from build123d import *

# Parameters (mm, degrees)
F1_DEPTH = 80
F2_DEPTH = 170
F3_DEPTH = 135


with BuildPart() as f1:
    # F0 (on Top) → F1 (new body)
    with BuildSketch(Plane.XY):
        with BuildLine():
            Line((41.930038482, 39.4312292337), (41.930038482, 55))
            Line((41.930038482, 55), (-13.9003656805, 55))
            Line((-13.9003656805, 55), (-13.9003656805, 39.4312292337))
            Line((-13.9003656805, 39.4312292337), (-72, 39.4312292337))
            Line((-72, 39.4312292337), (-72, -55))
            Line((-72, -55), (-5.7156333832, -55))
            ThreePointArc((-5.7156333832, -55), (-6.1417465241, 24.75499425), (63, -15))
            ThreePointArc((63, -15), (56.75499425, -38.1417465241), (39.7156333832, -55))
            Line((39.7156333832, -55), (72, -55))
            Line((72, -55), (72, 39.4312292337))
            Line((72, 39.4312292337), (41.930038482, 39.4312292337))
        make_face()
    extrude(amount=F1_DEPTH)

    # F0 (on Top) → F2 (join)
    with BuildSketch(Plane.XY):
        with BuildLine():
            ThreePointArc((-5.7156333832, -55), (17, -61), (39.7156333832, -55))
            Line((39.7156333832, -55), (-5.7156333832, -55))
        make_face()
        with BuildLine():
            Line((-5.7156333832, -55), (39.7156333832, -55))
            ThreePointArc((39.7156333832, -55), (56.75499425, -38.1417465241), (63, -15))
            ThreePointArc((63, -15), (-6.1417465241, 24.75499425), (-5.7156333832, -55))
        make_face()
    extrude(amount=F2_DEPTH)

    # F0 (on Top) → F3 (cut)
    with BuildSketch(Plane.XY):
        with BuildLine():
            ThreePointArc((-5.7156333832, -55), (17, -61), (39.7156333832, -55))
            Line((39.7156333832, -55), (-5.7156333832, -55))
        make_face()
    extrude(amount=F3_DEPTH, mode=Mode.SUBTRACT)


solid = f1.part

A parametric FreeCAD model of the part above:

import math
import FreeCAD as App
import Part
import Sketcher
Q = App.Units.Quantity

doc = App.newDocument("Part")
params = doc.addObject("Spreadsheet::Sheet", "Params")
for row, (alias, value) in enumerate([
    ("sketch1_radius", "46 mm"),
    ("pad1_length", "80 mm"),
    ("sketch2_radius", "46 mm"),
    ("pad2_length", "170 mm"),
    ("sketch3_radius", "46 mm"),
    ("pocket1_length", "135 mm"),
], start=1):
    params.set(f"A{row}", alias)
    params.set(f"B{row}", "=" + value)
    params.setAlias(f"B{row}", alias)

body = doc.addObject("PartDesign::Body", "Body")

sketch1 = body.newObject("Sketcher::SketchObject", "Sketch")
sketch1.AttachmentSupport = (doc.getObject("XY_Plane"), [""])
sketch1.MapMode = "FlatFace"
sketch1.addGeometry([
    Part.LineSegment(App.Vector(42, 39, 0), App.Vector(42, 55, 0)),
    Part.LineSegment(App.Vector(42, 55, 0), App.Vector(-14, 55, 0)),
    Part.LineSegment(App.Vector(-14, 55, 0), App.Vector(-14, 39, 0)),
    Part.LineSegment(App.Vector(-14, 39, 0), App.Vector(-72, 39, 0)),
    Part.LineSegment(App.Vector(-72, 39, 0), App.Vector(-72, -55, 0)),
    Part.LineSegment(App.Vector(-72, -55, 0), App.Vector(-6, -55, 0)),
    Part.ArcOfCircle(Part.Circle(App.Vector(17, -15, 0), App.Vector(0, 0, 1), 46), math.radians(0), math.radians(240)),
    Part.ArcOfCircle(Part.Circle(App.Vector(17, -15, 0), App.Vector(0, 0, 1), 46), math.radians(-60), math.radians(0)),
    Part.LineSegment(App.Vector(40, -55, 0), App.Vector(72, -55, 0)),
    Part.LineSegment(App.Vector(72, -55, 0), App.Vector(72, 39, 0)),
    Part.LineSegment(App.Vector(72, 39, 0), App.Vector(42, 39, 0)),
], False)
sketch1.addConstraint([
    Sketcher.Constraint("Coincident", 0, 2, 1, 1),
    Sketcher.Constraint("Coincident", 1, 2, 2, 1),
    Sketcher.Constraint("Coincident", 2, 2, 3, 1),
    Sketcher.Constraint("Coincident", 3, 2, 4, 1),
    Sketcher.Constraint("Coincident", 4, 2, 5, 1),
    Sketcher.Constraint("Coincident", 5, 2, 6, 2),
    Sketcher.Constraint("Tangent", 6, 1, 7, 2),
    Sketcher.Constraint("Coincident", 7, 1, 8, 1),
    Sketcher.Constraint("Coincident", 8, 2, 9, 1),
    Sketcher.Constraint("Coincident", 9, 2, 10, 1),
    Sketcher.Constraint("Coincident", 10, 2, 0, 1),
    Sketcher.Constraint("Vertical", 0),
    Sketcher.Constraint("Horizontal", 1),
    Sketcher.Constraint("Vertical", 2),
    Sketcher.Constraint("Horizontal", 3),
    Sketcher.Constraint("Vertical", 4),
    Sketcher.Constraint("Horizontal", 5),
    Sketcher.Constraint("Horizontal", 8),
    Sketcher.Constraint("Vertical", 9),
    Sketcher.Constraint("Horizontal", 10),
    Sketcher.Constraint("Equal", 6, 7),
    Sketcher.Constraint("Symmetric", 4, 2, 8, 2, -2),
    Sketcher.Constraint("Horizontal", 7, 3, 6, 1),
    Sketcher.Constraint("Horizontal", 3, 2, 9, 2),
    Sketcher.Constraint("Radius", 6, Q("46 mm")),
    Sketcher.Constraint("DistanceX", -1, 1, 6, 3, Q("17 mm")),
    Sketcher.Constraint("DistanceY", 6, 3, -1, 1, Q("15 mm")),
    Sketcher.Constraint("DistanceY", -1, 1, 0, 2, Q("55 mm")),
    Sketcher.Constraint("DistanceX", 3, 2, -1, 1, Q("72 mm")),
    Sketcher.Constraint("DistanceY", 4, 2, -1, 1, Q("55 mm")),
    Sketcher.Constraint("DistanceX", 2, 2, 7, 1, Q("53.615999 mm")),
    Sketcher.Constraint("DistanceX", 10, 2, 10, 1, Q("30.069962 mm")),
    Sketcher.Constraint("DistanceY", 0, 1, 0, 2, Q("15.568771 mm")),
])
sketch1.setExpression("Constraints[24]", "Params.sketch1_radius")
pad1 = body.newObject("PartDesign::Pad", "Pad")
pad1.Profile = sketch1
pad1.setExpression("Length", "Params.pad1_length")

sketch2 = body.newObject("Sketcher::SketchObject", "Sketch001")
sketch2.AttachmentSupport = (doc.getObject("XY_Plane"), [""])
sketch2.MapMode = "FlatFace"
sketch2.addGeometry([
    Part.ArcOfCircle(Part.Circle(App.Vector(17, -15, 0), App.Vector(0, 0, 1), 46), math.radians(-60), math.radians(0)),
    Part.ArcOfCircle(Part.Circle(App.Vector(17, -15, 0), App.Vector(0, 0, 1), 46), math.radians(0), math.radians(300)),
], False)
sketch2.addConstraint([
    Sketcher.Constraint("Tangent", 0, 1, 1, 2),
    Sketcher.Constraint("Coincident", 1, 1, 0, 2),
    Sketcher.Constraint("Horizontal", 0, 3, 1, 1),
    Sketcher.Constraint("Radius", 0, Q("46 mm")),
    Sketcher.Constraint("DistanceX", -1, 1, 0, 3, Q("17 mm")),
    Sketcher.Constraint("DistanceY", 0, 3, -1, 1, Q("15 mm")),
    Sketcher.Constraint("DistanceY", 0, 1, -1, 1, Q("55 mm")),
])
sketch2.setExpression("Constraints[3]", "Params.sketch2_radius")
pad2 = body.newObject("PartDesign::Pad", "Pad001")
pad2.Profile = sketch2
pad2.setExpression("Length", "Params.pad2_length")

sketch3 = body.newObject("Sketcher::SketchObject", "Sketch002")
sketch3.AttachmentSupport = (doc.getObject("XY_Plane"), [""])
sketch3.MapMode = "FlatFace"
sketch3.addGeometry([
    Part.ArcOfCircle(Part.Circle(App.Vector(17, -15, 0), App.Vector(0, 0, 1), 46), math.radians(-120), math.radians(-60)),
    Part.LineSegment(App.Vector(40, -55, 0), App.Vector(-6, -55, 0)),
], False)
sketch3.addConstraint([
    Sketcher.Constraint("Coincident", 0, 1, 1, 2),
    Sketcher.Constraint("Coincident", 1, 1, 0, 2),
    Sketcher.Constraint("Horizontal", 1),
    Sketcher.Constraint("Radius", 0, Q("46 mm")),
    Sketcher.Constraint("DistanceX", -1, 1, 0, 3, Q("17 mm")),
    Sketcher.Constraint("DistanceY", 0, 3, -1, 1, Q("15 mm")),
    Sketcher.Constraint("DistanceY", 0, 1, -1, 1, Q("55 mm")),
])
sketch3.setExpression("Constraints[3]", "Params.sketch3_radius")
pocket1 = body.newObject("PartDesign::Pocket", "Pocket")
pocket1.Profile = sketch3
pocket1.setExpression("Length", "Params.pocket1_length")
pocket1.Reversed = True

doc.recompute()
